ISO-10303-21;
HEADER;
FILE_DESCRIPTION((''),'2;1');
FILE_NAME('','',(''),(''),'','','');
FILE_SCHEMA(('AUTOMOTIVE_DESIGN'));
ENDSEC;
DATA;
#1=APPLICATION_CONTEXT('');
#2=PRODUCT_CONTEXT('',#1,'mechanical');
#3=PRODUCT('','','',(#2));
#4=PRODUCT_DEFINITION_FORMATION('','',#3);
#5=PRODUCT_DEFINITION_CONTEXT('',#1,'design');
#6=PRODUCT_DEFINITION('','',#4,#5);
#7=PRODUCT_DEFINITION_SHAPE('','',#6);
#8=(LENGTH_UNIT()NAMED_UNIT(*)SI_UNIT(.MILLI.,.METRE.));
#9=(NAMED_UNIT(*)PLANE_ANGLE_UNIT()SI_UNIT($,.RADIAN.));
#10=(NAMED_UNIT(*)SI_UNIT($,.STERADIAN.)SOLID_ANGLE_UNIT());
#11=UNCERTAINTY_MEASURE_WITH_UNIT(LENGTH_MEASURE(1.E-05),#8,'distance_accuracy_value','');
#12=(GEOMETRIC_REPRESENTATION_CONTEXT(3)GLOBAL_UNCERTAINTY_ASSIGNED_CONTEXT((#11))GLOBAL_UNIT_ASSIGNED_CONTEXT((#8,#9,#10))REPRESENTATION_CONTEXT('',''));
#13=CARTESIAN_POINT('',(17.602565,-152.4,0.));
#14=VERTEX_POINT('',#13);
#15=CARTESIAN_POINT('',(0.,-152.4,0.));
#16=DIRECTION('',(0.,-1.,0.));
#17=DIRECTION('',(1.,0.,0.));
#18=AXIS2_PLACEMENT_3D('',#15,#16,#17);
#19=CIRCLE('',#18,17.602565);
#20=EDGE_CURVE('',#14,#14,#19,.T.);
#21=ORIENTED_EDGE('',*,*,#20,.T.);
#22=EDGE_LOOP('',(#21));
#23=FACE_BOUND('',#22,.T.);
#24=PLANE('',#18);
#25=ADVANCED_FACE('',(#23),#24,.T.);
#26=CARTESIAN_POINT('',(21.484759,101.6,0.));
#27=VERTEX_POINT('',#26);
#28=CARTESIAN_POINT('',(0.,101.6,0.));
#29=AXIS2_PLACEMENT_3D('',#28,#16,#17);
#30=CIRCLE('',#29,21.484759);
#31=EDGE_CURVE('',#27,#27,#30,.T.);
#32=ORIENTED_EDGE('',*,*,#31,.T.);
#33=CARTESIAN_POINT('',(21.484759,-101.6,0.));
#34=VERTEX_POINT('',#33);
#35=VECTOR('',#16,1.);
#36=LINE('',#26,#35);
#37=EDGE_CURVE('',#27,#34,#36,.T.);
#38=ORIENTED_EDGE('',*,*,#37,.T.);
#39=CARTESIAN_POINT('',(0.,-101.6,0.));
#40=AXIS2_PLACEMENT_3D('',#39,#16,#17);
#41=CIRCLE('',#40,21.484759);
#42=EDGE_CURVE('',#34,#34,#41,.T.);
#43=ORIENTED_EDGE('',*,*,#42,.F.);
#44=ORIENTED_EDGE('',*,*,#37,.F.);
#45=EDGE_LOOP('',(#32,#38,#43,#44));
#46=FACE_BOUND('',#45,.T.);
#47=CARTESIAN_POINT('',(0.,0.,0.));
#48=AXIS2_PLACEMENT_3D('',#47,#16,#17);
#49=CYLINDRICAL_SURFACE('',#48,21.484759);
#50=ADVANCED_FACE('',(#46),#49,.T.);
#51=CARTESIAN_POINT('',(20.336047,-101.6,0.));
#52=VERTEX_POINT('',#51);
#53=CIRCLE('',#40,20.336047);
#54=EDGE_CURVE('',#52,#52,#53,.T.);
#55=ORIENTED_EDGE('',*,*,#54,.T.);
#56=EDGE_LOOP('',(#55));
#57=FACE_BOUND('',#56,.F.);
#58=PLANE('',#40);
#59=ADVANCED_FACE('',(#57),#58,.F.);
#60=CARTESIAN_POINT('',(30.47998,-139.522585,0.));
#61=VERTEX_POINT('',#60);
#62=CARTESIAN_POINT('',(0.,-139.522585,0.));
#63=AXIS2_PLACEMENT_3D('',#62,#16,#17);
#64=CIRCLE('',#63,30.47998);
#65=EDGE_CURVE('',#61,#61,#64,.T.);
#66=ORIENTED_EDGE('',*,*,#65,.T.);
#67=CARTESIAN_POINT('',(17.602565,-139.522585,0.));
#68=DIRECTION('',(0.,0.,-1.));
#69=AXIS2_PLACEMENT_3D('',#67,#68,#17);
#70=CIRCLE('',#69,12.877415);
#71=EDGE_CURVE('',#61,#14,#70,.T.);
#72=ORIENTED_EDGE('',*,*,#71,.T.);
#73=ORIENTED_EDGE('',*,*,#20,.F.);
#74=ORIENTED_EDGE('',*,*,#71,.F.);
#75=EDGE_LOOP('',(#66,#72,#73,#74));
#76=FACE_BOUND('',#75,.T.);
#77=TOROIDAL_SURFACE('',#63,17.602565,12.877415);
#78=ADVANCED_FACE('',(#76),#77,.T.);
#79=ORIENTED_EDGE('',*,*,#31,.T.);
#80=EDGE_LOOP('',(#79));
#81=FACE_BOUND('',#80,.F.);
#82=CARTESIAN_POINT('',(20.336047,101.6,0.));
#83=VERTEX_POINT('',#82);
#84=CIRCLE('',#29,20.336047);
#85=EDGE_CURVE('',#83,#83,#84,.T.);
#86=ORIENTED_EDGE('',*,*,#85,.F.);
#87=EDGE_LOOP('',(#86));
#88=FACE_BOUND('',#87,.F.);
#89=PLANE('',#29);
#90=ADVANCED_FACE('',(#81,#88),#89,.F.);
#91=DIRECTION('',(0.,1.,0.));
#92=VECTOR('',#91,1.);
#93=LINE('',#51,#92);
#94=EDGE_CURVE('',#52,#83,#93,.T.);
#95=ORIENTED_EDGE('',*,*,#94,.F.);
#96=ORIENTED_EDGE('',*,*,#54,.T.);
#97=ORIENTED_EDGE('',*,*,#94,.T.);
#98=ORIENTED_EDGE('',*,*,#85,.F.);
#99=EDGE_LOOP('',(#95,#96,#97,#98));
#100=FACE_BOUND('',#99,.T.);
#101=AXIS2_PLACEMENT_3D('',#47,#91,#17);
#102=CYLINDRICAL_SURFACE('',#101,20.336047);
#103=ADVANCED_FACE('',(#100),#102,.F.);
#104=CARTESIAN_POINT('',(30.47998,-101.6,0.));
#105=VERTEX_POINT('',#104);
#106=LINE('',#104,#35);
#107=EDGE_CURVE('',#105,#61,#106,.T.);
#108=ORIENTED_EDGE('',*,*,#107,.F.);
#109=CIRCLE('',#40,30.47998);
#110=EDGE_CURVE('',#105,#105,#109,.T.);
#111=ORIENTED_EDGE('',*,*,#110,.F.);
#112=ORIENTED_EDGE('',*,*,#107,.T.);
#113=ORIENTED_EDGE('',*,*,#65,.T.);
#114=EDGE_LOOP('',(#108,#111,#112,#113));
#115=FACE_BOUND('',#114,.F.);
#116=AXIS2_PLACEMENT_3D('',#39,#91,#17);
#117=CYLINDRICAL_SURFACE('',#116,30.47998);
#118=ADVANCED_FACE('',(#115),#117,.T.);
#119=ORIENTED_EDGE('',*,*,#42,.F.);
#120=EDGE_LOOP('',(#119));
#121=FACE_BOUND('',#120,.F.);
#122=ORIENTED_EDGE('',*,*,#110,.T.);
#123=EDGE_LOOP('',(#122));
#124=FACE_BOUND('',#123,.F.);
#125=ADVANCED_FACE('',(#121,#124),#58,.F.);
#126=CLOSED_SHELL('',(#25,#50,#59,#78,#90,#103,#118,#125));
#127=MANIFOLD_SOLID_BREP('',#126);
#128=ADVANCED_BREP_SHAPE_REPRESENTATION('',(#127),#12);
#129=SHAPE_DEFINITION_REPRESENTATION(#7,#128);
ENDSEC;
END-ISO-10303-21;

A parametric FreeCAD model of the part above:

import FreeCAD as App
import Part
import Sketcher
Q = App.Units.Quantity


def edges_at(feature, points):
    """Names of the edges that pass closest to the given points."""
    edges = feature.Shape.Edges
    near = lambda p: min(range(len(edges)), key=lambda i: edges[i].distToShape(Part.Vertex(*p))[0])
    return sorted({f"Edge{near(p) + 1}" for p in points})

doc = App.newDocument("Part")
body = doc.addObject("PartDesign::Body", "Body")

# Sketch on XZ plane
sketch1 = body.newObject("Sketcher::SketchObject", "Sketch")
sketch1.AttachmentSupport = (doc.getObject("XZ_Plane"), [""])
sketch1.MapMode = "FlatFace"
sketch1.addGeometry(Part.Circle(App.Vector(0, 0, 0), App.Vector(0, 0, 1), 21), False)
sketch1.addGeometry(Part.Circle(App.Vector(0, 0, 0), App.Vector(0, 0, 1), 20), False)
sketch1.addConstraint(Sketcher.Constraint("Coincident", 0, 3, -1, 1))
sketch1.addConstraint(Sketcher.Constraint("Coincident", 1, 3, -1, 1))
sketch1.addConstraint(Sketcher.Constraint("Diameter", 0, 42.969518))
sketch1.addConstraint(Sketcher.Constraint("Diameter", 1, 40.672094))
pad1 = body.newObject("PartDesign::Pad", "Pad")
pad1.Profile = sketch1
pad1.Length = Q("8 in")
pad1.Midplane = True

# Sketch on XZ plane
sketch2 = body.newObject("Sketcher::SketchObject", "Sketch001")
sketch2.AttachmentSupport = (doc.getObject("XZ_Plane"), [""])
sketch2.MapMode = "FlatFace"
sketch2.AttachmentOffset = App.Placement(App.Vector(0, 0, 4 * 25.4), App.Rotation())
sketch2.addGeometry(Part.Circle(App.Vector(0, 0, 0), App.Vector(0, 0, 1), 30), False)
sketch2.addConstraint(Sketcher.Constraint("Coincident", 0, 3, -1, 1))
sketch2.addConstraint(Sketcher.Constraint("Diameter", 0, 60.95996))
pad2 = body.newObject("PartDesign::Pad", "Pad001")
pad2.Profile = sketch2
pad2.Length = Q("2 in")
doc.recompute()

fillet = body.newObject("PartDesign::Fillet", "Fillet")
fillet.Base = (pad2, edges_at(pad2, [(-30.48, -152.4, 0)]))
fillet.Radius = 12.877415

doc.recompute()
